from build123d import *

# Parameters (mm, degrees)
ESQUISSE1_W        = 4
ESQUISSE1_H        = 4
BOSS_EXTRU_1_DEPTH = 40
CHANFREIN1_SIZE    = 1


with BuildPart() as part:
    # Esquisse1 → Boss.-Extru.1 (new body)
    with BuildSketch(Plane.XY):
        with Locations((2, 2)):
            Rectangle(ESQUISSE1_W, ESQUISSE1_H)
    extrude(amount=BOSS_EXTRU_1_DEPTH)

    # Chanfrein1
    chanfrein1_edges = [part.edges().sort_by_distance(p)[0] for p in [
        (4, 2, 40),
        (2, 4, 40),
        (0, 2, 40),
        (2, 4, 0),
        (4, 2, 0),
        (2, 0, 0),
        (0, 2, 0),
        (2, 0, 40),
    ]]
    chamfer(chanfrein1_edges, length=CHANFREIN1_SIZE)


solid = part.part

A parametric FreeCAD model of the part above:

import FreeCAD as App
import Part
import Sketcher

V = App.Vector
Q = App.Units.Quantity


def edges_at(feature, points):
    """Names of the edges that pass closest to the given points."""
    edges = feature.Shape.Edges
    near = lambda p: min(range(len(edges)), key=lambda i: edges[i].distToShape(Part.Vertex(*p))[0])
    return sorted({f"Edge{near(p) + 1}" for p in points})


def add_polygon(sketch, points):
    """Adds a closed chain of lines whose ends are joined by coincident constraints."""
    first, n = sketch.GeometryCount, len(points)
    for a, b in zip(points, points[1:] + points[:1]):
        sketch.addGeometry(Part.LineSegment(App.Vector(*a, 0), App.Vector(*b, 0)), False)
    for i in range(n):
        sketch.addConstraint(Sketcher.Constraint("Coincident", first + i, 2, first + (i + 1) % n, 1))

doc = App.newDocument("Part")
body = doc.addObject("PartDesign::Body", "Body")

# Sketch on XY plane
sketch1 = body.newObject("Sketcher::SketchObject", "Sketch")
sketch1.AttachmentSupport = (doc.getObject("XY_Plane"), [""])
sketch1.MapMode = "FlatFace"
add_polygon(sketch1, [(0, 4), (0, 0), (4, 0), (4, 4)])  # lines 0-3
sketch1.addConstraint([
    Sketcher.Constraint("Vertical", 0),
    Sketcher.Constraint("Horizontal", 1),
    Sketcher.Constraint("Vertical", 2),
    Sketcher.Constraint("Horizontal", 3),
    Sketcher.Constraint("Coincident", 0, 2, -1, 1),
    Sketcher.Constraint("Equal", 3, 0),
    Sketcher.Constraint("DistanceX", 1, 1, 1, 2, Q("4 mm")),
])
pad1 = body.newObject("PartDesign::Pad", "Pad")
pad1.Profile = sketch1
pad1.Length = 40
doc.recompute()

chamfer = body.newObject("PartDesign::Chamfer", "Chamfer")
chamfer.Base = (pad1, edges_at(pad1, [
    (4, 2, 40),
    (2, 4, 40),
    (0, 2, 40),
    (2, 4, 0),
    (4, 2, 0),
    (2, 0, 0),
    (0, 2, 0),
    (2, 0, 40),
]))
chamfer.Size = 1

doc.recompute()
